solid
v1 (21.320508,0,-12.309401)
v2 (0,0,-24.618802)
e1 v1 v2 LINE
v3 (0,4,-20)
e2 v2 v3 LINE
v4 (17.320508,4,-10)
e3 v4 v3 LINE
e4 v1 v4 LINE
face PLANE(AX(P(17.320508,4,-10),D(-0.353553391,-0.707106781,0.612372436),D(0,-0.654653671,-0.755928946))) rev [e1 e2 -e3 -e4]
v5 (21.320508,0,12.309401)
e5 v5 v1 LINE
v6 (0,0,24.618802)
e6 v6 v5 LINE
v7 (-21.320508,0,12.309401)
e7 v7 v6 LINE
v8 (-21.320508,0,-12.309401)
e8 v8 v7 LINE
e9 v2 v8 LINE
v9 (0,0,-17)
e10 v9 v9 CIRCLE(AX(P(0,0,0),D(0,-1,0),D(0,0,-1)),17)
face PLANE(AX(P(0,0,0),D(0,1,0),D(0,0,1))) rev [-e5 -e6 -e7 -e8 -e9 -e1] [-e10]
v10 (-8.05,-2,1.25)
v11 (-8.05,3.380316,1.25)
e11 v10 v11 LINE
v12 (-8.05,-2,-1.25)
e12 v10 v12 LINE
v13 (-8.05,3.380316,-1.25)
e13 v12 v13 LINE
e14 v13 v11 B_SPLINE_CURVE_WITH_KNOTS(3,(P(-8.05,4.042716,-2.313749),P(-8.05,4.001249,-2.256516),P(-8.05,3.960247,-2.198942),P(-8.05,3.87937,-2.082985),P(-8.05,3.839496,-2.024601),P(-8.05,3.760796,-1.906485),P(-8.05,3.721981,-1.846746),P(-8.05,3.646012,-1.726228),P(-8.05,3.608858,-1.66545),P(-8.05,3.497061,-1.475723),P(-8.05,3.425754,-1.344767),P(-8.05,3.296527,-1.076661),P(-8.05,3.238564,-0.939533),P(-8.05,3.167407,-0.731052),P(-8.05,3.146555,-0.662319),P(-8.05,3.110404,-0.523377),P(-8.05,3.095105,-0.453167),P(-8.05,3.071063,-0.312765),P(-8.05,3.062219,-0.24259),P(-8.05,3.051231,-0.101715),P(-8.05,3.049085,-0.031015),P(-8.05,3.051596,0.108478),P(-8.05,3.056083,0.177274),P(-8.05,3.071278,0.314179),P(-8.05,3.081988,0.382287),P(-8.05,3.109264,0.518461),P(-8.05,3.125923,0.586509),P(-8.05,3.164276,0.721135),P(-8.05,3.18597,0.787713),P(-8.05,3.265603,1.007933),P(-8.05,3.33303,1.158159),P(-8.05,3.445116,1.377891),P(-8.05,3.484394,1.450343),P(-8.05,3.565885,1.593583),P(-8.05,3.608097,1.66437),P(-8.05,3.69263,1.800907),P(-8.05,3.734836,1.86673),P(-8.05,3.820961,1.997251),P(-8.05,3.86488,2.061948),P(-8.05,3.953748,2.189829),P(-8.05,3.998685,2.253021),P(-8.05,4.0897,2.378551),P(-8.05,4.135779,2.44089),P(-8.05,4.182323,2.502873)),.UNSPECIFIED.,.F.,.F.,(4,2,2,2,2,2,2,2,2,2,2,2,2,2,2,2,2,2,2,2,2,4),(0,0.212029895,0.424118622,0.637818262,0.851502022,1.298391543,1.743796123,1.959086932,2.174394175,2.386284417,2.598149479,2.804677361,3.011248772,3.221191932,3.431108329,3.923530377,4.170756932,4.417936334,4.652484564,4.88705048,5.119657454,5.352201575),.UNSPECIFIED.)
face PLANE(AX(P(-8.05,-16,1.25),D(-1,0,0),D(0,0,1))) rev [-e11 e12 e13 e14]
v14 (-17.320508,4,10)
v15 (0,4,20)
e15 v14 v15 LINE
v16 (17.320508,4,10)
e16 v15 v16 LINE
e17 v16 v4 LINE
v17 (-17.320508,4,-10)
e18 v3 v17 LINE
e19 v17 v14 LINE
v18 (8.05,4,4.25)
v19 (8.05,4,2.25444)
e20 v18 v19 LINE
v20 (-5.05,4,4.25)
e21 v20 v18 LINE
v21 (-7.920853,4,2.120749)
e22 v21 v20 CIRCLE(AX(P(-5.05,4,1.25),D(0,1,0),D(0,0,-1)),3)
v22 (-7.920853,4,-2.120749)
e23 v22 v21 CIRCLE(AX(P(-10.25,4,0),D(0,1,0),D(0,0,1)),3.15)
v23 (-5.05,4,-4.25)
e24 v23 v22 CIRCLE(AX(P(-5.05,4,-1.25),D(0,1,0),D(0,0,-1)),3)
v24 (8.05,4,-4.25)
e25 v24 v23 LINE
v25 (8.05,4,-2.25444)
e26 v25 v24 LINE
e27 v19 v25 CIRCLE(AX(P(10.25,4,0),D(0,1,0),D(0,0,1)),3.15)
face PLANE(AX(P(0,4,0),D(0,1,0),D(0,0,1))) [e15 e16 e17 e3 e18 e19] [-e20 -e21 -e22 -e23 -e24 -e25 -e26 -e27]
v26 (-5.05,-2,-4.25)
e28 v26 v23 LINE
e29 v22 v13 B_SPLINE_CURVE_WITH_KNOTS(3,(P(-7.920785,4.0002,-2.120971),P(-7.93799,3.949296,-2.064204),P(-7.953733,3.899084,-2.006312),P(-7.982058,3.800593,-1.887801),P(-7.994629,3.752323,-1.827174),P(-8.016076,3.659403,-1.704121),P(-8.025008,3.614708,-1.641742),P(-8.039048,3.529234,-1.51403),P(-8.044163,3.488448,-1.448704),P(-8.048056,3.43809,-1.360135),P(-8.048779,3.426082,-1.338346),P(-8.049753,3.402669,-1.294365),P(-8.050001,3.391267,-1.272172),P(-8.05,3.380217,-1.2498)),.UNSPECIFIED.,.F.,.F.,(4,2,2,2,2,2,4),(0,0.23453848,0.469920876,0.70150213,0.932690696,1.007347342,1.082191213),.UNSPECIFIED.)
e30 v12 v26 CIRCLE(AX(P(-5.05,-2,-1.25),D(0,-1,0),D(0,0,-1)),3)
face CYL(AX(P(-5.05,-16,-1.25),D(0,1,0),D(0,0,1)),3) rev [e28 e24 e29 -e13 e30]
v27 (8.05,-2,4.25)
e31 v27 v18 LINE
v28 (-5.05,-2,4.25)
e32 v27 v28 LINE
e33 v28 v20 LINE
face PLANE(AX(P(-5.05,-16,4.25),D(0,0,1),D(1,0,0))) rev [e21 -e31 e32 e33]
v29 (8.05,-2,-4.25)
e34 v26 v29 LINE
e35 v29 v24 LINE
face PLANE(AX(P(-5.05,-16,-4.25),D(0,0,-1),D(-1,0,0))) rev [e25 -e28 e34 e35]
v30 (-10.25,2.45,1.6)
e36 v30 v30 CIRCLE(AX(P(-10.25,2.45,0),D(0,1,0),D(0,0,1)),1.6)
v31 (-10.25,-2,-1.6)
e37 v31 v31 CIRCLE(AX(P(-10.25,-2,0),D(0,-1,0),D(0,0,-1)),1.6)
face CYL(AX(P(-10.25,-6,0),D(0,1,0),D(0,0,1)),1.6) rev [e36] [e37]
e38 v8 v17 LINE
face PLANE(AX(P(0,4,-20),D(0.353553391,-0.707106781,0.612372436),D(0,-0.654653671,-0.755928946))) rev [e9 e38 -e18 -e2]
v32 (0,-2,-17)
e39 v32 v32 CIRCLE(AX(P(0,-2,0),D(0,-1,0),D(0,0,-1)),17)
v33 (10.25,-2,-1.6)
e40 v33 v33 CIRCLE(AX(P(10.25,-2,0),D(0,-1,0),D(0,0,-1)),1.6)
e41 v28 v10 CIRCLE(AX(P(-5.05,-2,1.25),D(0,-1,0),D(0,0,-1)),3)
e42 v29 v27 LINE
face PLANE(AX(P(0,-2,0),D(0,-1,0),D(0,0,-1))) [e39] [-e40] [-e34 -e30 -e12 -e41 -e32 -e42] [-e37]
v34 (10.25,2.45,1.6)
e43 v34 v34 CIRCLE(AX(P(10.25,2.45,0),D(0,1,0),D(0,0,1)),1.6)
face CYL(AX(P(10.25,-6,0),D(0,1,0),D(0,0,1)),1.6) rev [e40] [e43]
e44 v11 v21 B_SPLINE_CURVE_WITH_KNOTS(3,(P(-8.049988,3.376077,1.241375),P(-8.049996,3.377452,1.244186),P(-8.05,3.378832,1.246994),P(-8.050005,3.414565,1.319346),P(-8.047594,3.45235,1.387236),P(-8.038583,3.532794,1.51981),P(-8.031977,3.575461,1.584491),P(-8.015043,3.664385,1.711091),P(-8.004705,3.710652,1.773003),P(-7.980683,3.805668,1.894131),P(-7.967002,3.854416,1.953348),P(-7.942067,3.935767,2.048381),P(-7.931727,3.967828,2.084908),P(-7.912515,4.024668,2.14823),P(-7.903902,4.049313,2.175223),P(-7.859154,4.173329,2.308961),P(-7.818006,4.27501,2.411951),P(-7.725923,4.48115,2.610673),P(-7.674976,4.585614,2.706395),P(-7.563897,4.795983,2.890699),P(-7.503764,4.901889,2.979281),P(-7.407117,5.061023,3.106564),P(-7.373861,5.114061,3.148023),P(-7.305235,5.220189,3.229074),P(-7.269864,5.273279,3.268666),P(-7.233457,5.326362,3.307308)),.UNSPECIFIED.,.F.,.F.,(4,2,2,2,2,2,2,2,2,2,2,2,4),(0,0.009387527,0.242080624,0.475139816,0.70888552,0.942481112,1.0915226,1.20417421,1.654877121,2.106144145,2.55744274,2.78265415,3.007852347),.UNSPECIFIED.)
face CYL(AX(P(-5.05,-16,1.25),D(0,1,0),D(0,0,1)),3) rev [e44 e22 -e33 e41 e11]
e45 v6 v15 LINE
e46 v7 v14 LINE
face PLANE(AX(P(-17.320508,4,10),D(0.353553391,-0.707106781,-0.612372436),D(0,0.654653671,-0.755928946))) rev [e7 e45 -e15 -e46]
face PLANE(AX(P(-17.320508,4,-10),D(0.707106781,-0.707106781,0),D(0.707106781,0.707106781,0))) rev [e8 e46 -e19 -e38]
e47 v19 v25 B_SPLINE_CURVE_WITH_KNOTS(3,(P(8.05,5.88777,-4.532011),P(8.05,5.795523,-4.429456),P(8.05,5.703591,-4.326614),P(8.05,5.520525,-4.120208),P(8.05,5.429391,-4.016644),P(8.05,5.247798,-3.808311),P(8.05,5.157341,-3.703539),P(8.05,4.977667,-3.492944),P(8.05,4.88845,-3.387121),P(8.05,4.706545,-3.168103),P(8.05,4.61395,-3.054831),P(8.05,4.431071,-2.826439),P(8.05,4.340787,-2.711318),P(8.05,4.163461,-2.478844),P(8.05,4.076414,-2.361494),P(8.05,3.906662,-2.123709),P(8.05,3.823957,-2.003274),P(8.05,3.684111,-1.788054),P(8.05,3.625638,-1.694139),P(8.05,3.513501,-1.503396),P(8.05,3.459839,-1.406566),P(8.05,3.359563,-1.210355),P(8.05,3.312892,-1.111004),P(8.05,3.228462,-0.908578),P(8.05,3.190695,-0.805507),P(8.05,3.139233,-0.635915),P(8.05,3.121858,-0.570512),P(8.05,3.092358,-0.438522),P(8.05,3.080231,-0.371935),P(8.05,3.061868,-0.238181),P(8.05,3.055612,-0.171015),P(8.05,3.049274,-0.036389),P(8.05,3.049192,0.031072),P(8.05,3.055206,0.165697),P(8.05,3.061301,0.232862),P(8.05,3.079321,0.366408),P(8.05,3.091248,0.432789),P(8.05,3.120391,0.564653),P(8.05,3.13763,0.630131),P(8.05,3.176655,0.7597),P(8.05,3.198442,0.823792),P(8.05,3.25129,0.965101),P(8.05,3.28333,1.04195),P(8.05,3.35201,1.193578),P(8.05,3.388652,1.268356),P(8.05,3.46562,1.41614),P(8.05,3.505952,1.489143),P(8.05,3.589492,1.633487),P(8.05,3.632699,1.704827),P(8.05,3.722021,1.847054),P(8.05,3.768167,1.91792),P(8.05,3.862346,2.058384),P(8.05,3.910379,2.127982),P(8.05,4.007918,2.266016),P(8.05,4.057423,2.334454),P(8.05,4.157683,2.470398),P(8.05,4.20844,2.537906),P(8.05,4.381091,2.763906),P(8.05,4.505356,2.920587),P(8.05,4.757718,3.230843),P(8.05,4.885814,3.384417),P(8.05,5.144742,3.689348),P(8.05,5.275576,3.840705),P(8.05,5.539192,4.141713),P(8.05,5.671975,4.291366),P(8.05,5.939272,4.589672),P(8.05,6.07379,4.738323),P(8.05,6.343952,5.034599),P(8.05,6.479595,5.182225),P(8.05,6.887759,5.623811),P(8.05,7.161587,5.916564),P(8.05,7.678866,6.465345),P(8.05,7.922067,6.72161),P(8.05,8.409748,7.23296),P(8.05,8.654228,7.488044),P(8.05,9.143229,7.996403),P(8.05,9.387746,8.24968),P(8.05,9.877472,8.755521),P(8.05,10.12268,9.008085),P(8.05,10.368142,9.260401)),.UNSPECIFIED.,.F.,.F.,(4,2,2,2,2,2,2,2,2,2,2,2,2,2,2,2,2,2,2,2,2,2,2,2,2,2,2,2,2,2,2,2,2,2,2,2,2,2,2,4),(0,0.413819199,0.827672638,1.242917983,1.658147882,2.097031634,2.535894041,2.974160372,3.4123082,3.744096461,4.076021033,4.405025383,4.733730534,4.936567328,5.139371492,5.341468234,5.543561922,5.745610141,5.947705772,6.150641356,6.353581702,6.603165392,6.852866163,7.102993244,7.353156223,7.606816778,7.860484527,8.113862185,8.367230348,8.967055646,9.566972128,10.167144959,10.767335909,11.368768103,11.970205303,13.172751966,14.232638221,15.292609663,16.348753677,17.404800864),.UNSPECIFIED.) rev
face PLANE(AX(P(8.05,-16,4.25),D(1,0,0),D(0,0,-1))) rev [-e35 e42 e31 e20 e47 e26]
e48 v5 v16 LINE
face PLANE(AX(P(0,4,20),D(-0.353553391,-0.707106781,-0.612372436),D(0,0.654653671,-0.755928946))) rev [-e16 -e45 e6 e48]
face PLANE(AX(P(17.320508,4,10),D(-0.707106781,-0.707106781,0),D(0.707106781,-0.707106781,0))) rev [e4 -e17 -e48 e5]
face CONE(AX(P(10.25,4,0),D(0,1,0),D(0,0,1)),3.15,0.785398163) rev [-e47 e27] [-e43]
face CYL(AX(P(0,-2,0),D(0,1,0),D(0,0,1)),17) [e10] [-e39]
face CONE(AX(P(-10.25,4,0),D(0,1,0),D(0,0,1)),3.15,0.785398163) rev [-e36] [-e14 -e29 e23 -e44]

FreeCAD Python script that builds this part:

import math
import FreeCAD as App
import Part
import Sketcher
Q = App.Units.Quantity

doc = App.newDocument("Part")
params = doc.addObject("Spreadsheet::Sheet", "Params")
for row, (alias, value) in enumerate([
    ("sketch1_diameter", "52 mm"),
    ("pad1_length", "4 mm"),
    ("sketch2_diameter", "34 mm"),
    ("pad2_length", "2 mm"),
    ("sketch3_radius", "3 mm"),
    ("sketch3_width", "13.1 mm"),
    ("sketch3_height", "8.5 mm"),
    ("pocket1_length", "20 mm"),
    ("sketch4_diameter", "3.2 mm"),
    ("pocket2_length", "10 mm"),
    ("sketch5_height", "20 mm"),
    ("sketch5_length", "20 mm"),
    ("pocket3_length", "10 mm"),
    ("pocket3_taper", "45 deg"),
    ("sketch6_diameter", "3.2 mm"),
    ("hole_diameter", "3.2 mm"),
    ("hole_csink_diameter", "6.3 mm"),
], start=1):
    params.set(f"A{row}", alias)
    params.set(f"B{row}", "=" + value)
    params.setAlias(f"B{row}", alias)

body = doc.addObject("PartDesign::Body", "Body")

sketch1 = body.newObject("Sketcher::SketchObject", "Sketch")
sketch1.AttachmentSupport = (doc.getObject("XZ_Plane"), [""])
sketch1.MapMode = "FlatFace"
sketch1.addGeometry(Part.Circle(App.Vector(0, 0, 0), App.Vector(0, 0, 1), 26), False)
sketch1.addConstraint(Sketcher.Constraint("Coincident", 0, 3, -1, 1))
sketch1.addConstraint(Sketcher.Constraint("Diameter", 0, Q("52 mm")))
sketch1.setExpression("Constraints[1]", "Params.sketch1_diameter")
pad1 = body.newObject("PartDesign::Pad", "Pad")
pad1.Profile = sketch1
pad1.setExpression("Length", "Params.pad1_length")
pad1.Reversed = True

sketch2 = body.newObject("Sketcher::SketchObject", "Sketch001")
sketch2.AttachmentSupport = (doc.getObject("XZ_Plane"), [""])
sketch2.MapMode = "FlatFace"
sketch2.addGeometry(Part.Circle(App.Vector(0, 0, 0), App.Vector(0, 0, 1), 17), False)
sketch2.addConstraint(Sketcher.Constraint("Coincident", 0, 3, -1, 1))
sketch2.addConstraint(Sketcher.Constraint("Diameter", 0, Q("34 mm")))
sketch2.setExpression("Constraints[1]", "Params.sketch2_diameter")
pad2 = body.newObject("PartDesign::Pad", "Pad001")
pad2.Profile = sketch2
pad2.setExpression("Length", "Params.pad2_length")

sketch3 = body.newObject("Sketcher::SketchObject", "Sketch002")
sketch3.AttachmentSupport = (doc.getObject("XZ_Plane"), [""])
sketch3.MapMode = "FlatFace"
sketch3.AttachmentOffset = App.Placement(App.Vector(0, 0, -4), App.Rotation())
sketch3.addGeometry(Part.LineSegment(App.Vector(-5, 4.2, 0), App.Vector(8.1, 4.2, 0)), False)
sketch3.addGeometry(Part.LineSegment(App.Vector(8.1, 4.2, 0), App.Vector(8.1, -4.2, 0)), False)
sketch3.addGeometry(Part.LineSegment(App.Vector(8.1, -4.2, 0), App.Vector(-5, -4.2, 0)), False)
sketch3.addGeometry(Part.ArcOfCircle(Part.Circle(App.Vector(-5.1, -1.3, 0), App.Vector(0, 0, 1), 3), math.radians(180), math.radians(270)), False)
sketch3.addGeometry(Part.LineSegment(App.Vector(-8.1, -1.2, 0), App.Vector(-8.1, 1.2, 0)), False)
sketch3.addGeometry(Part.ArcOfCircle(Part.Circle(App.Vector(-5.1, 1.3, 0), App.Vector(0, 0, 1), 3), math.radians(90), math.radians(180)), False)
sketch3.addConstraint(Sketcher.Constraint("Coincident", 0, 2, 1, 1))
sketch3.addConstraint(Sketcher.Constraint("Coincident", 1, 2, 2, 1))
sketch3.addConstraint(Sketcher.Constraint("Tangent", 2, 2, 3, 2))
sketch3.addConstraint(Sketcher.Constraint("Tangent", 3, 1, 4, 1))
sketch3.addConstraint(Sketcher.Constraint("Tangent", 4, 2, 5, 2))
sketch3.addConstraint(Sketcher.Constraint("Tangent", 5, 1, 0, 1))
sketch3.addConstraint(Sketcher.Constraint("Horizontal", 0))
sketch3.addConstraint(Sketcher.Constraint("Vertical", 1))
sketch3.addConstraint(Sketcher.Constraint("Horizontal", 2))
sketch3.addConstraint(Sketcher.Constraint("Vertical", 4))
sketch3.addConstraint(Sketcher.Constraint("Equal", 3, 5))
sketch3.addConstraint(Sketcher.Constraint("Radius", 3, Q("3 mm")))
sketch3.addConstraint(Sketcher.Constraint("DistanceX", 0, 1, 0, 2, Q("13.1 mm")))
sketch3.addConstraint(Sketcher.Constraint("DistanceY", 1, 2, 1, 1, Q("8.5 mm")))
sketch3.addConstraint(Sketcher.Constraint("DistanceX", 3, 3, -1, 1, Q("5.05 mm")))
sketch3.addConstraint(Sketcher.Constraint("DistanceY", 3, 3, -1, 1, Q("1.25 mm")))
sketch3.setExpression("Constraints[11]", "Params.sketch3_radius")
sketch3.setExpression("Constraints[12]", "Params.sketch3_width")
sketch3.setExpression("Constraints[13]", "Params.sketch3_height")
pocket1 = body.newObject("PartDesign::Pocket", "Pocket")
pocket1.Profile = sketch3
pocket1.setExpression("Length", "Params.pocket1_length")
pocket1.Reversed = True

sketch4 = body.newObject("Sketcher::SketchObject", "Sketch003")
sketch4.AttachmentSupport = (doc.getObject("XZ_Plane"), [""])
sketch4.MapMode = "FlatFace"
sketch4.AttachmentOffset = App.Placement(App.Vector(0, 0, -4), App.Rotation())
sketch4.addGeometry(Part.Circle(App.Vector(-10.2, 0, 0), App.Vector(0, 0, 1), 1.6), False)
sketch4.addGeometry(Part.Circle(App.Vector(10.2, 0, 0), App.Vector(0, 0, 1), 1.6), False)
sketch4.addConstraint(Sketcher.Constraint("Equal", 0, 1))
sketch4.addConstraint(Sketcher.Constraint("Symmetric", 0, 3, 1, 3, -1, 1))
sketch4.addConstraint(Sketcher.Constraint("PointOnObject", 0, 3, -1))
sketch4.addConstraint(Sketcher.Constraint("Diameter", 0, Q("3.2 mm")))
sketch4.addConstraint(Sketcher.Constraint("DistanceX", 0, 3, 1, 3, Q("20.5 mm")))
sketch4.setExpression("Constraints[3]", "Params.sketch4_diameter")
pocket2 = body.newObject("PartDesign::Pocket", "Pocket001")
pocket2.Profile = sketch4
pocket2.setExpression("Length", "Params.pocket2_length")
pocket2.Reversed = True

sketch5 = body.newObject("Sketcher::SketchObject", "Sketch004")
sketch5.AttachmentSupport = (doc.getObject("XZ_Plane"), [""])
sketch5.MapMode = "FlatFace"
sketch5.AttachmentOffset = App.Placement(App.Vector(0, 0, -4), App.Rotation())
sketch5.addGeometry(Part.LineSegment(App.Vector(-44, -44, 0), App.Vector(-44, 44, 0)), False)
sketch5.addGeometry(Part.LineSegment(App.Vector(-44, 44, 0), App.Vector(44, 44, 0)), False)
sketch5.addGeometry(Part.LineSegment(App.Vector(44, 44, 0), App.Vector(44, -44, 0)), False)
sketch5.addGeometry(Part.LineSegment(App.Vector(44, -44, 0), App.Vector(-44, -44, 0)), False)
sketch5.addGeometry(Part.LineSegment(App.Vector(-17, -10, 0), App.Vector(0, -20, 0)), False)
sketch5.addGeometry(Part.LineSegment(App.Vector(0, -20, 0), App.Vector(17, -10, 0)), False)
sketch5.addGeometry(Part.LineSegment(App.Vector(17, -10, 0), App.Vector(17, 10, 0)), False)
sketch5.addGeometry(Part.LineSegment(App.Vector(17, 10, 0), App.Vector(0, 20, 0)), False)
sketch5.addGeometry(Part.LineSegment(App.Vector(0, 20, 0), App.Vector(-17, 10, 0)), False)
sketch5.addGeometry(Part.LineSegment(App.Vector(-17, 10, 0), App.Vector(-17, -10, 0)), False)
sketch5.addConstraint(Sketcher.Constraint("Coincident", 0, 2, 1, 1))
sketch5.addConstraint(Sketcher.Constraint("Coincident", 1, 2, 2, 1))
sketch5.addConstraint(Sketcher.Constraint("Coincident", 2, 2, 3, 1))
sketch5.addConstraint(Sketcher.Constraint("Coincident", 3, 2, 0, 1))
sketch5.addConstraint(Sketcher.Constraint("Coincident", 4, 2, 5, 1))
sketch5.addConstraint(Sketcher.Constraint("Coincident", 5, 2, 6, 1))
sketch5.addConstraint(Sketcher.Constraint("Coincident", 6, 2, 7, 1))
sketch5.addConstraint(Sketcher.Constraint("Coincident", 7, 2, 8, 1))
sketch5.addConstraint(Sketcher.Constraint("Coincident", 8, 2, 9, 1))
sketch5.addConstraint(Sketcher.Constraint("Coincident", 9, 2, 4, 1))
sketch5.addConstraint(Sketcher.Constraint("Vertical", 0))
sketch5.addConstraint(Sketcher.Constraint("Horizontal", 1))
sketch5.addConstraint(Sketcher.Constraint("Vertical", 2))
sketch5.addConstraint(Sketcher.Constraint("Horizontal", 3))
sketch5.addConstraint(Sketcher.Constraint("Vertical", 6))
sketch5.addConstraint(Sketcher.Constraint("Vertical", 9))
sketch5.addConstraint(Sketcher.Constraint("Symmetric", 0, 2, 2, 2, -1, 1))
sketch5.addConstraint(Sketcher.Constraint("Symmetric", 4, 2, 7, 2, -1, 1))
sketch5.addConstraint(Sketcher.Constraint("Symmetric", 5, 2, 8, 2, -1, 1))
sketch5.addConstraint(Sketcher.Constraint("PointOnObject", 4, 2, -2))
sketch5.addConstraint(Sketcher.Constraint("Parallel", 4, 7))
sketch5.addConstraint(Sketcher.Constraint("Horizontal", 6, 2, 8, 2))
sketch5.addConstraint(Sketcher.Constraint("Equal", 3, 0))
sketch5.addConstraint(Sketcher.Constraint("DistanceY", 6, 1, 6, 2, Q("20 mm")))
sketch5.addConstraint(Sketcher.Constraint("Angle", 4, Q("-30 deg")))
sketch5.addConstraint(Sketcher.Constraint("Distance", 4, Q("20 mm")))
sketch5.addConstraint(Sketcher.Constraint("DistanceX", 1, 1, 1, 2, Q("88.756 mm")))
sketch5.setExpression("Constraints[23]", "Params.sketch5_height")
sketch5.setExpression("Constraints[25]", "Params.sketch5_length")
pocket3 = body.newObject("PartDesign::Pocket", "Pocket002")
pocket3.Profile = sketch5
pocket3.setExpression("Length", "Params.pocket3_length")
pocket3.Reversed = True
pocket3.setExpression("TaperAngle", "Params.pocket3_taper")

sketch6 = body.newObject("Sketcher::SketchObject", "Sketch005")
sketch6.AttachmentSupport = (doc.getObject("XZ_Plane"), [""])
sketch6.MapMode = "FlatFace"
sketch6.AttachmentOffset = App.Placement(App.Vector(0, 0, -4), App.Rotation())
sketch6.addGeometry(Part.Circle(App.Vector(-10.2, 0, 0), App.Vector(0, 0, 1), 1.6), False)
sketch6.addGeometry(Part.Circle(App.Vector(10.2, 0, 0), App.Vector(0, 0, 1), 1.6), False)
sketch6.addConstraint(Sketcher.Constraint("Equal", 0, 1))
sketch6.addConstraint(Sketcher.Constraint("Symmetric", 0, 3, 1, 3, -1, 1))
sketch6.addConstraint(Sketcher.Constraint("PointOnObject", 0, 3, -1))
sketch6.addConstraint(Sketcher.Constraint("Diameter", 0, Q("3.2 mm")))
sketch6.addConstraint(Sketcher.Constraint("DistanceX", 0, 3, 1, 3, Q("20.5 mm")))
sketch6.setExpression("Constraints[3]", "Params.sketch6_diameter")
doc.recompute()
hole = body.newObject("PartDesign::Hole", "Hole")
hole.Profile = sketch6
hole.ThreadType = "None"
hole.setExpression("Diameter", "Params.hole_diameter")
hole.DepthType = "ThroughAll"
hole.HoleCutType = "Countersink"
hole.setExpression("HoleCutDiameter", "Params.hole_csink_diameter")
hole.HoleCutCountersinkAngle = 90
hole.Reversed = True

doc.recompute()
